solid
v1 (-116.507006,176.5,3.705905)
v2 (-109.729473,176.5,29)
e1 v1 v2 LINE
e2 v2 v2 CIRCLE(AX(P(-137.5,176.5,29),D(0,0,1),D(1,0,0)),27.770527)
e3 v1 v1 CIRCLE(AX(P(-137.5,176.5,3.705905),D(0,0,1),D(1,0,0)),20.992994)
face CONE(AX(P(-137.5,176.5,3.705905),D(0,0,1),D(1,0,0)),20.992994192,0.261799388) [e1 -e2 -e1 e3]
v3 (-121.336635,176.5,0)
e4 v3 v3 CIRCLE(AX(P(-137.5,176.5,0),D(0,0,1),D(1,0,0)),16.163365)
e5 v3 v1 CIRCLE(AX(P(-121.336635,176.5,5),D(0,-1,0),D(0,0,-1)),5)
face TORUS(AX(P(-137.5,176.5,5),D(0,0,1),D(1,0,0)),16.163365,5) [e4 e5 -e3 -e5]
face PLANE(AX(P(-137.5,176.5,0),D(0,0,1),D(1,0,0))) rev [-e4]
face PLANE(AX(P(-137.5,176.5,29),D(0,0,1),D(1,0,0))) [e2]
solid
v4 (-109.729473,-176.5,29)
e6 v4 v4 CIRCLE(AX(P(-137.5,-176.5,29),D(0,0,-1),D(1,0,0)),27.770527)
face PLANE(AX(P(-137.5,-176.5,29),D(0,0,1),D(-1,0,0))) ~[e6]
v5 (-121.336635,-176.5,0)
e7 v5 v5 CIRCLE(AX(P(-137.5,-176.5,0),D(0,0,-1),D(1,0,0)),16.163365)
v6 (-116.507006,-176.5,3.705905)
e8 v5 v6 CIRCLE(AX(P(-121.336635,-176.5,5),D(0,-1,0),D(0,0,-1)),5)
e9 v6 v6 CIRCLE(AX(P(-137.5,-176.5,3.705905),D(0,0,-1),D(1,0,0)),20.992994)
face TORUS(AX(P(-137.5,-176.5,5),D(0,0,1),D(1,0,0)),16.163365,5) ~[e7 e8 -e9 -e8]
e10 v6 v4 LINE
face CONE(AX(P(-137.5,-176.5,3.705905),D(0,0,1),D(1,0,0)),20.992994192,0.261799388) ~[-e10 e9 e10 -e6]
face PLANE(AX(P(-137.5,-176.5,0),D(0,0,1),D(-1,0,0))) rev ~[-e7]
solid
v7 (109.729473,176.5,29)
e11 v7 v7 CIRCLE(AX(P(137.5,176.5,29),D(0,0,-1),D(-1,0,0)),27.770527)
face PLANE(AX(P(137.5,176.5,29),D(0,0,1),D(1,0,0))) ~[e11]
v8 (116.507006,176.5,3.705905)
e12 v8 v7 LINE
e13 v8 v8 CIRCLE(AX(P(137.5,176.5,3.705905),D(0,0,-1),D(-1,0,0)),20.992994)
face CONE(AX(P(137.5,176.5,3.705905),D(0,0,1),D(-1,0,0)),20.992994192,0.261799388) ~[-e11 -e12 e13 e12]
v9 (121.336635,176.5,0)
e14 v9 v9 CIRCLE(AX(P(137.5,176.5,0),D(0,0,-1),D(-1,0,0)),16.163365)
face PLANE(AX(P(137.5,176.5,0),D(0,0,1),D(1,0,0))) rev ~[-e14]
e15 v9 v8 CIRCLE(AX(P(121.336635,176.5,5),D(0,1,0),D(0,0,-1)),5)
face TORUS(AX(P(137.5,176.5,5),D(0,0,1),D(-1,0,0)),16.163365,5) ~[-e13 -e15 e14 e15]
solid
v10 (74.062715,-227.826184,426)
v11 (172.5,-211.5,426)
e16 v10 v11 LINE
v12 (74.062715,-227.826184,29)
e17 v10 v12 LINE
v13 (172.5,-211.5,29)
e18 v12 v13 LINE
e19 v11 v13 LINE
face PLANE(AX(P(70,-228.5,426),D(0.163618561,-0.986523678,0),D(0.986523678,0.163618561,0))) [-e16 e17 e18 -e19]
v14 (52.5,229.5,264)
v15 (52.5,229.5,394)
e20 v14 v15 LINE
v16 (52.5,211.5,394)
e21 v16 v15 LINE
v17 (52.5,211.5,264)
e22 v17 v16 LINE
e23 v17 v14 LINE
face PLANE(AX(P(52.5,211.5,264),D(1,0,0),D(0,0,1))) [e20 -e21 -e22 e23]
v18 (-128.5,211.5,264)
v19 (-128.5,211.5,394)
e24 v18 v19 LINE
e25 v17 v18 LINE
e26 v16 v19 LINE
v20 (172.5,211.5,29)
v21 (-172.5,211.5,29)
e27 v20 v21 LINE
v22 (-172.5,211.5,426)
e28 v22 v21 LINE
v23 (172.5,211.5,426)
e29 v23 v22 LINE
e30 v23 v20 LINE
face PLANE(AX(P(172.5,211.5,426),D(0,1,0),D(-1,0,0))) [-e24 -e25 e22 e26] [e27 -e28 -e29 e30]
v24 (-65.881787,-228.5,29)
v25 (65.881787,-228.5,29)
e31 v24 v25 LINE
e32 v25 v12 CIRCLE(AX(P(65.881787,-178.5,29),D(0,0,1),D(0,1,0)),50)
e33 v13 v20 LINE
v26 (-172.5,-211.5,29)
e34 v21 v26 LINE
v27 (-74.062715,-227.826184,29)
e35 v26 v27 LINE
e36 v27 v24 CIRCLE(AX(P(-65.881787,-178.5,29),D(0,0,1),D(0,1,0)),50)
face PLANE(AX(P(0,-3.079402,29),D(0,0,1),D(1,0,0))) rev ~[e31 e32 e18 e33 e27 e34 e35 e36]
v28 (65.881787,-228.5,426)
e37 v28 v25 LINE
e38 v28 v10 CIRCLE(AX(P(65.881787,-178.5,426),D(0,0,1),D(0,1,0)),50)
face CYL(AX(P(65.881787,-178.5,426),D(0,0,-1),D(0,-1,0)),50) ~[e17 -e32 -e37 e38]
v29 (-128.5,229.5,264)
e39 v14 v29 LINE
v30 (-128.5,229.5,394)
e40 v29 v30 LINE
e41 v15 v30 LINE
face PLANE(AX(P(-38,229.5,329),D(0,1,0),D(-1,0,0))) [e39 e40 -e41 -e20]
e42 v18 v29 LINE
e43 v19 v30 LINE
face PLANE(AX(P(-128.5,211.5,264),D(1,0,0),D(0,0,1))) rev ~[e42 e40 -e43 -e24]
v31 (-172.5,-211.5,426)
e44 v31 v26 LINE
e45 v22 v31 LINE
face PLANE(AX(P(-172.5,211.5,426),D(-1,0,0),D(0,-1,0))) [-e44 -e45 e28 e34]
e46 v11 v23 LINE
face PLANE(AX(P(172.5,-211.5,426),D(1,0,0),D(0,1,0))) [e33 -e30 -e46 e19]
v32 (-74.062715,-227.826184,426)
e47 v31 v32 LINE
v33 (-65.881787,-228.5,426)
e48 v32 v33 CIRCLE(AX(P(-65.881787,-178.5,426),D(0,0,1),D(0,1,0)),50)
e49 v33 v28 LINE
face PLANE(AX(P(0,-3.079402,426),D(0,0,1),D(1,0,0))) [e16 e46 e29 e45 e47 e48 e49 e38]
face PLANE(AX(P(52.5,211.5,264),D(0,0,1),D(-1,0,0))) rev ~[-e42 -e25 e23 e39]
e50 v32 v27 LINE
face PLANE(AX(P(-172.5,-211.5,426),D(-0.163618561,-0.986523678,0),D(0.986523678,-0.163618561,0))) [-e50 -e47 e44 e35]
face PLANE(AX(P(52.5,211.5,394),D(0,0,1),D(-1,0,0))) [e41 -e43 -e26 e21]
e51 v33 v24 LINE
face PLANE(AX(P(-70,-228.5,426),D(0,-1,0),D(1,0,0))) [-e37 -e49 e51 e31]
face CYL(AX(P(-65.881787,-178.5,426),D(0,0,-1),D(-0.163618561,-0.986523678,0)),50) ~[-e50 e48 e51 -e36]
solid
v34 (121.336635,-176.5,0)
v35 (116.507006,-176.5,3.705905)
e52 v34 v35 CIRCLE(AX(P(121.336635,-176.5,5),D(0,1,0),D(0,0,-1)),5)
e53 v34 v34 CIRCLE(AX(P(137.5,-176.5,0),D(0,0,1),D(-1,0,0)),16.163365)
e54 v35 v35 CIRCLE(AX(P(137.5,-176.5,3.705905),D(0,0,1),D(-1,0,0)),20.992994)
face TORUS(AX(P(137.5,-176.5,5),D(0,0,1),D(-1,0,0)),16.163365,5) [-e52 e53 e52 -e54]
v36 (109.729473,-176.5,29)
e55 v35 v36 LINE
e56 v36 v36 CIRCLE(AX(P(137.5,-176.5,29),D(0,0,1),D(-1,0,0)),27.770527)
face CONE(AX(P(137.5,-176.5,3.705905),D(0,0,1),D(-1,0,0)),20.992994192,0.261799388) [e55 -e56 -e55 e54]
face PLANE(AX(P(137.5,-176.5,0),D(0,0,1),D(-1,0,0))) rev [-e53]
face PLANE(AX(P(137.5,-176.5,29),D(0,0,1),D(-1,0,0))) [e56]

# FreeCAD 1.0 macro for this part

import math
import FreeCAD as App
import Part
import Sketcher
Q = App.Units.Quantity


def edges_at(feature, points):
    """Names of the edges that pass closest to the given points."""
    edges = feature.Shape.Edges
    near = lambda p: min(range(len(edges)), key=lambda i: edges[i].distToShape(Part.Vertex(*p))[0])
    return sorted({f"Edge{near(p) + 1}" for p in points})


def add_polygon(sketch, points):
    """Adds a closed chain of lines whose ends are joined by coincident constraints."""
    first, n = sketch.GeometryCount, len(points)
    for a, b in zip(points, points[1:] + points[:1]):
        sketch.addGeometry(Part.LineSegment(App.Vector(*a, 0), App.Vector(*b, 0)), False)
    for i in range(n):
        sketch.addConstraint(Sketcher.Constraint("Coincident", first + i, 2, first + (i + 1) % n, 1))

doc = App.newDocument("Part")
body = doc.addObject("PartDesign::Body", "Body")

# Sketch on XY plane
sketch1 = body.newObject("Sketcher::SketchObject", "Sketch")
sketch1.AttachmentSupport = (doc.getObject("XY_Plane"), [""])
sketch1.MapMode = "FlatFace"
sketch1.AttachmentOffset = App.Placement(App.Vector(0, 0, 426), App.Rotation())
add_polygon(sketch1, [(172, 212), (-172, 212), (-172, -212), (-70, -228), (70, -228), (172, -212)])  # lines 0-5
sketch1.addConstraint(Sketcher.Constraint("Horizontal", 0))
sketch1.addConstraint(Sketcher.Constraint("Vertical", 1))
sketch1.addConstraint(Sketcher.Constraint("Horizontal", 3))
sketch1.addConstraint(Sketcher.Constraint("Vertical", 5))
sketch1.addConstraint(Sketcher.Constraint("Symmetric", 0, 2, 4, 2, -1, 1))
sketch1.addConstraint(Sketcher.Constraint("Horizontal", 1, 2, 4, 2))
sketch1.addConstraint(Sketcher.Constraint("Equal", 2, 4))
sketch1.addConstraint(Sketcher.Constraint("DistanceX", 0, 2, 0, 1, 345.0))
sketch1.addConstraint(Sketcher.Constraint("DistanceX", 3, 1, 3, 2, 140.0))
sketch1.addConstraint(Sketcher.Constraint("DistanceY", 1, 2, 1, 1, 423.0))
sketch1.addConstraint(Sketcher.Constraint("DistanceY", 2, 2, 1, 2, 17.0))
pad1 = body.newObject("PartDesign::Pad", "Pad")
pad1.Profile = sketch1
pad1.Length = 397
pad1.Reversed = True
doc.recompute()

fillet = body.newObject("PartDesign::Fillet", "Fillet")
fillet.Base = (pad1, edges_at(pad1, [(-70, -228.5, 227.5), (70, -228.5, 227.5)]))
fillet.Radius = 50

# Sketch on XZ plane
sketch2 = body.newObject("Sketcher::SketchObject", "Sketch001")
sketch2.AttachmentSupport = (doc.getObject("XZ_Plane"), [""])
sketch2.MapMode = "FlatFace"
sketch2.AttachmentOffset = App.Placement(App.Vector(0, 0, -211.5), App.Rotation())
add_polygon(sketch2, [(52, 394), (52, 264), (-128, 264), (-128, 394)])  # lines 0-3
sketch2.addConstraint(Sketcher.Constraint("Vertical", 0))
sketch2.addConstraint(Sketcher.Constraint("Horizontal", 1))
sketch2.addConstraint(Sketcher.Constraint("Vertical", 2))
sketch2.addConstraint(Sketcher.Constraint("Horizontal", 3))
sketch2.addConstraint(Sketcher.Constraint("DistanceX", 1, 2, 1, 1, 181.0))
sketch2.addConstraint(Sketcher.Constraint("DistanceY", 0, 2, 0, 1, 130.0))
sketch2.addConstraint(Sketcher.Constraint("DistanceY", -1, 1, 0, 2, 264.0))
sketch2.addConstraint(Sketcher.Constraint("DistanceX", -1, 1, 0, 2, 52.5))
pad2 = body.newObject("PartDesign::Pad", "Pad001")
pad2.Profile = sketch2
pad2.Length = 18
pad2.Reversed = True
body2 = doc.addObject("PartDesign::Body", "Body001")

# Sketch on XZ plane
sketch3 = body2.newObject("Sketcher::SketchObject", "Sketch002")
sketch3.AttachmentSupport = (doc.getObject("XZ_Plane001"), [""])
sketch3.MapMode = "FlatFace"
sketch3.AttachmentOffset = App.Placement(App.Vector(0, 0, -176.5), App.Rotation())
sketch3.addGeometry(Part.LineSegment(App.Vector(-117, 4, 0), App.Vector(-110, 29, 0)), False)
sketch3.addGeometry(Part.LineSegment(App.Vector(-110, 29, 0), App.Vector(-138, 29, 0)), False)
sketch3.addGeometry(Part.LineSegment(App.Vector(-138, 29, 0), App.Vector(-138, 0, 0)), False)
sketch3.addGeometry(Part.LineSegment(App.Vector(-138, 0, 0), App.Vector(-121, 0, 0)), False)
sketch3.addGeometry(Part.ArcOfCircle(Part.Circle(App.Vector(-121, 5, 0), App.Vector(0, 0, 1), 5), math.radians(-90), math.radians(-15)), False)
sketch3.addGeometry(Part.LineSegment(App.Vector(-138, 0, 0), App.Vector(-138, 29, 0)), True)  # axis
sketch3.addConstraint(Sketcher.Constraint("Coincident", 0, 2, 1, 1))
sketch3.addConstraint(Sketcher.Constraint("Coincident", 1, 2, 2, 1))
sketch3.addConstraint(Sketcher.Constraint("Coincident", 2, 2, 3, 1))
sketch3.addConstraint(Sketcher.Constraint("Tangent", 3, 2, 4, 1))
sketch3.addConstraint(Sketcher.Constraint("Tangent", 4, 2, 0, 1))
sketch3.addConstraint(Sketcher.Constraint("Horizontal", 1))
sketch3.addConstraint(Sketcher.Constraint("Vertical", 2))
sketch3.addConstraint(Sketcher.Constraint("Horizontal", 3))
sketch3.addConstraint(Sketcher.Constraint("Vertical", 5))
sketch3.addConstraint(Sketcher.Constraint("Coincident", 5, 1, 2, 2))
sketch3.addConstraint(Sketcher.Constraint("PointOnObject", 2, 2, -1))
sketch3.addConstraint(Sketcher.Constraint("Horizontal", 0, 2, 5, 2))
sketch3.addConstraint(Sketcher.Constraint("Radius", 4, 5.0))
sketch3.addConstraint(Sketcher.Constraint("DistanceY", 2, 2, 2, 1, 29.0))
sketch3.addConstraint(Sketcher.Constraint("Angle", 0, Q("75 deg")))
sketch3.addConstraint(Sketcher.Constraint("DistanceX", 1, 2, -1, 1, 137.5))
sketch3.addConstraint(Sketcher.Constraint("DistanceX", 1, 2, 1, 1, 27.770527))
revolution = body2.newObject("PartDesign::Revolution", "Revolution")
revolution.Profile = sketch3
revolution.ReferenceAxis = (sketch3, ["Axis0"])
revolution.Angle = 360
body3 = doc.addObject("PartDesign::Body", "Body002")
doc.recompute()

mirroring = doc.addObject("Part::Mirroring", "Mirroring")
mirroring.Source = body2
mirroring.Base = App.Vector(0, 0, 0)
mirroring.Normal = App.Vector(1, 0, 0)
body3.BaseFeature = mirroring
doc.recompute()
body4 = doc.addObject("PartDesign::Body", "Body003")
doc.recompute()

mirroring2 = doc.addObject("Part::Mirroring", "Mirroring001")
mirroring2.Source = body2
mirroring2.Base = App.Vector(0, 0, 0)
mirroring2.Normal = App.Vector(0, -1, 0)
body4.BaseFeature = mirroring2
doc.recompute()
body5 = doc.addObject("PartDesign::Body", "Body004")
doc.recompute()

mirroring3 = doc.addObject("Part::Mirroring", "Mirroring002")
mirroring3.Source = body3
mirroring3.Base = App.Vector(0, 0, 0)
mirroring3.Normal = App.Vector(0, -1, 0)
body5.BaseFeature = mirroring3
doc.recompute()
mirroring.Visibility = False
mirroring2.Visibility = False
mirroring3.Visibility = False

doc.recompute()
